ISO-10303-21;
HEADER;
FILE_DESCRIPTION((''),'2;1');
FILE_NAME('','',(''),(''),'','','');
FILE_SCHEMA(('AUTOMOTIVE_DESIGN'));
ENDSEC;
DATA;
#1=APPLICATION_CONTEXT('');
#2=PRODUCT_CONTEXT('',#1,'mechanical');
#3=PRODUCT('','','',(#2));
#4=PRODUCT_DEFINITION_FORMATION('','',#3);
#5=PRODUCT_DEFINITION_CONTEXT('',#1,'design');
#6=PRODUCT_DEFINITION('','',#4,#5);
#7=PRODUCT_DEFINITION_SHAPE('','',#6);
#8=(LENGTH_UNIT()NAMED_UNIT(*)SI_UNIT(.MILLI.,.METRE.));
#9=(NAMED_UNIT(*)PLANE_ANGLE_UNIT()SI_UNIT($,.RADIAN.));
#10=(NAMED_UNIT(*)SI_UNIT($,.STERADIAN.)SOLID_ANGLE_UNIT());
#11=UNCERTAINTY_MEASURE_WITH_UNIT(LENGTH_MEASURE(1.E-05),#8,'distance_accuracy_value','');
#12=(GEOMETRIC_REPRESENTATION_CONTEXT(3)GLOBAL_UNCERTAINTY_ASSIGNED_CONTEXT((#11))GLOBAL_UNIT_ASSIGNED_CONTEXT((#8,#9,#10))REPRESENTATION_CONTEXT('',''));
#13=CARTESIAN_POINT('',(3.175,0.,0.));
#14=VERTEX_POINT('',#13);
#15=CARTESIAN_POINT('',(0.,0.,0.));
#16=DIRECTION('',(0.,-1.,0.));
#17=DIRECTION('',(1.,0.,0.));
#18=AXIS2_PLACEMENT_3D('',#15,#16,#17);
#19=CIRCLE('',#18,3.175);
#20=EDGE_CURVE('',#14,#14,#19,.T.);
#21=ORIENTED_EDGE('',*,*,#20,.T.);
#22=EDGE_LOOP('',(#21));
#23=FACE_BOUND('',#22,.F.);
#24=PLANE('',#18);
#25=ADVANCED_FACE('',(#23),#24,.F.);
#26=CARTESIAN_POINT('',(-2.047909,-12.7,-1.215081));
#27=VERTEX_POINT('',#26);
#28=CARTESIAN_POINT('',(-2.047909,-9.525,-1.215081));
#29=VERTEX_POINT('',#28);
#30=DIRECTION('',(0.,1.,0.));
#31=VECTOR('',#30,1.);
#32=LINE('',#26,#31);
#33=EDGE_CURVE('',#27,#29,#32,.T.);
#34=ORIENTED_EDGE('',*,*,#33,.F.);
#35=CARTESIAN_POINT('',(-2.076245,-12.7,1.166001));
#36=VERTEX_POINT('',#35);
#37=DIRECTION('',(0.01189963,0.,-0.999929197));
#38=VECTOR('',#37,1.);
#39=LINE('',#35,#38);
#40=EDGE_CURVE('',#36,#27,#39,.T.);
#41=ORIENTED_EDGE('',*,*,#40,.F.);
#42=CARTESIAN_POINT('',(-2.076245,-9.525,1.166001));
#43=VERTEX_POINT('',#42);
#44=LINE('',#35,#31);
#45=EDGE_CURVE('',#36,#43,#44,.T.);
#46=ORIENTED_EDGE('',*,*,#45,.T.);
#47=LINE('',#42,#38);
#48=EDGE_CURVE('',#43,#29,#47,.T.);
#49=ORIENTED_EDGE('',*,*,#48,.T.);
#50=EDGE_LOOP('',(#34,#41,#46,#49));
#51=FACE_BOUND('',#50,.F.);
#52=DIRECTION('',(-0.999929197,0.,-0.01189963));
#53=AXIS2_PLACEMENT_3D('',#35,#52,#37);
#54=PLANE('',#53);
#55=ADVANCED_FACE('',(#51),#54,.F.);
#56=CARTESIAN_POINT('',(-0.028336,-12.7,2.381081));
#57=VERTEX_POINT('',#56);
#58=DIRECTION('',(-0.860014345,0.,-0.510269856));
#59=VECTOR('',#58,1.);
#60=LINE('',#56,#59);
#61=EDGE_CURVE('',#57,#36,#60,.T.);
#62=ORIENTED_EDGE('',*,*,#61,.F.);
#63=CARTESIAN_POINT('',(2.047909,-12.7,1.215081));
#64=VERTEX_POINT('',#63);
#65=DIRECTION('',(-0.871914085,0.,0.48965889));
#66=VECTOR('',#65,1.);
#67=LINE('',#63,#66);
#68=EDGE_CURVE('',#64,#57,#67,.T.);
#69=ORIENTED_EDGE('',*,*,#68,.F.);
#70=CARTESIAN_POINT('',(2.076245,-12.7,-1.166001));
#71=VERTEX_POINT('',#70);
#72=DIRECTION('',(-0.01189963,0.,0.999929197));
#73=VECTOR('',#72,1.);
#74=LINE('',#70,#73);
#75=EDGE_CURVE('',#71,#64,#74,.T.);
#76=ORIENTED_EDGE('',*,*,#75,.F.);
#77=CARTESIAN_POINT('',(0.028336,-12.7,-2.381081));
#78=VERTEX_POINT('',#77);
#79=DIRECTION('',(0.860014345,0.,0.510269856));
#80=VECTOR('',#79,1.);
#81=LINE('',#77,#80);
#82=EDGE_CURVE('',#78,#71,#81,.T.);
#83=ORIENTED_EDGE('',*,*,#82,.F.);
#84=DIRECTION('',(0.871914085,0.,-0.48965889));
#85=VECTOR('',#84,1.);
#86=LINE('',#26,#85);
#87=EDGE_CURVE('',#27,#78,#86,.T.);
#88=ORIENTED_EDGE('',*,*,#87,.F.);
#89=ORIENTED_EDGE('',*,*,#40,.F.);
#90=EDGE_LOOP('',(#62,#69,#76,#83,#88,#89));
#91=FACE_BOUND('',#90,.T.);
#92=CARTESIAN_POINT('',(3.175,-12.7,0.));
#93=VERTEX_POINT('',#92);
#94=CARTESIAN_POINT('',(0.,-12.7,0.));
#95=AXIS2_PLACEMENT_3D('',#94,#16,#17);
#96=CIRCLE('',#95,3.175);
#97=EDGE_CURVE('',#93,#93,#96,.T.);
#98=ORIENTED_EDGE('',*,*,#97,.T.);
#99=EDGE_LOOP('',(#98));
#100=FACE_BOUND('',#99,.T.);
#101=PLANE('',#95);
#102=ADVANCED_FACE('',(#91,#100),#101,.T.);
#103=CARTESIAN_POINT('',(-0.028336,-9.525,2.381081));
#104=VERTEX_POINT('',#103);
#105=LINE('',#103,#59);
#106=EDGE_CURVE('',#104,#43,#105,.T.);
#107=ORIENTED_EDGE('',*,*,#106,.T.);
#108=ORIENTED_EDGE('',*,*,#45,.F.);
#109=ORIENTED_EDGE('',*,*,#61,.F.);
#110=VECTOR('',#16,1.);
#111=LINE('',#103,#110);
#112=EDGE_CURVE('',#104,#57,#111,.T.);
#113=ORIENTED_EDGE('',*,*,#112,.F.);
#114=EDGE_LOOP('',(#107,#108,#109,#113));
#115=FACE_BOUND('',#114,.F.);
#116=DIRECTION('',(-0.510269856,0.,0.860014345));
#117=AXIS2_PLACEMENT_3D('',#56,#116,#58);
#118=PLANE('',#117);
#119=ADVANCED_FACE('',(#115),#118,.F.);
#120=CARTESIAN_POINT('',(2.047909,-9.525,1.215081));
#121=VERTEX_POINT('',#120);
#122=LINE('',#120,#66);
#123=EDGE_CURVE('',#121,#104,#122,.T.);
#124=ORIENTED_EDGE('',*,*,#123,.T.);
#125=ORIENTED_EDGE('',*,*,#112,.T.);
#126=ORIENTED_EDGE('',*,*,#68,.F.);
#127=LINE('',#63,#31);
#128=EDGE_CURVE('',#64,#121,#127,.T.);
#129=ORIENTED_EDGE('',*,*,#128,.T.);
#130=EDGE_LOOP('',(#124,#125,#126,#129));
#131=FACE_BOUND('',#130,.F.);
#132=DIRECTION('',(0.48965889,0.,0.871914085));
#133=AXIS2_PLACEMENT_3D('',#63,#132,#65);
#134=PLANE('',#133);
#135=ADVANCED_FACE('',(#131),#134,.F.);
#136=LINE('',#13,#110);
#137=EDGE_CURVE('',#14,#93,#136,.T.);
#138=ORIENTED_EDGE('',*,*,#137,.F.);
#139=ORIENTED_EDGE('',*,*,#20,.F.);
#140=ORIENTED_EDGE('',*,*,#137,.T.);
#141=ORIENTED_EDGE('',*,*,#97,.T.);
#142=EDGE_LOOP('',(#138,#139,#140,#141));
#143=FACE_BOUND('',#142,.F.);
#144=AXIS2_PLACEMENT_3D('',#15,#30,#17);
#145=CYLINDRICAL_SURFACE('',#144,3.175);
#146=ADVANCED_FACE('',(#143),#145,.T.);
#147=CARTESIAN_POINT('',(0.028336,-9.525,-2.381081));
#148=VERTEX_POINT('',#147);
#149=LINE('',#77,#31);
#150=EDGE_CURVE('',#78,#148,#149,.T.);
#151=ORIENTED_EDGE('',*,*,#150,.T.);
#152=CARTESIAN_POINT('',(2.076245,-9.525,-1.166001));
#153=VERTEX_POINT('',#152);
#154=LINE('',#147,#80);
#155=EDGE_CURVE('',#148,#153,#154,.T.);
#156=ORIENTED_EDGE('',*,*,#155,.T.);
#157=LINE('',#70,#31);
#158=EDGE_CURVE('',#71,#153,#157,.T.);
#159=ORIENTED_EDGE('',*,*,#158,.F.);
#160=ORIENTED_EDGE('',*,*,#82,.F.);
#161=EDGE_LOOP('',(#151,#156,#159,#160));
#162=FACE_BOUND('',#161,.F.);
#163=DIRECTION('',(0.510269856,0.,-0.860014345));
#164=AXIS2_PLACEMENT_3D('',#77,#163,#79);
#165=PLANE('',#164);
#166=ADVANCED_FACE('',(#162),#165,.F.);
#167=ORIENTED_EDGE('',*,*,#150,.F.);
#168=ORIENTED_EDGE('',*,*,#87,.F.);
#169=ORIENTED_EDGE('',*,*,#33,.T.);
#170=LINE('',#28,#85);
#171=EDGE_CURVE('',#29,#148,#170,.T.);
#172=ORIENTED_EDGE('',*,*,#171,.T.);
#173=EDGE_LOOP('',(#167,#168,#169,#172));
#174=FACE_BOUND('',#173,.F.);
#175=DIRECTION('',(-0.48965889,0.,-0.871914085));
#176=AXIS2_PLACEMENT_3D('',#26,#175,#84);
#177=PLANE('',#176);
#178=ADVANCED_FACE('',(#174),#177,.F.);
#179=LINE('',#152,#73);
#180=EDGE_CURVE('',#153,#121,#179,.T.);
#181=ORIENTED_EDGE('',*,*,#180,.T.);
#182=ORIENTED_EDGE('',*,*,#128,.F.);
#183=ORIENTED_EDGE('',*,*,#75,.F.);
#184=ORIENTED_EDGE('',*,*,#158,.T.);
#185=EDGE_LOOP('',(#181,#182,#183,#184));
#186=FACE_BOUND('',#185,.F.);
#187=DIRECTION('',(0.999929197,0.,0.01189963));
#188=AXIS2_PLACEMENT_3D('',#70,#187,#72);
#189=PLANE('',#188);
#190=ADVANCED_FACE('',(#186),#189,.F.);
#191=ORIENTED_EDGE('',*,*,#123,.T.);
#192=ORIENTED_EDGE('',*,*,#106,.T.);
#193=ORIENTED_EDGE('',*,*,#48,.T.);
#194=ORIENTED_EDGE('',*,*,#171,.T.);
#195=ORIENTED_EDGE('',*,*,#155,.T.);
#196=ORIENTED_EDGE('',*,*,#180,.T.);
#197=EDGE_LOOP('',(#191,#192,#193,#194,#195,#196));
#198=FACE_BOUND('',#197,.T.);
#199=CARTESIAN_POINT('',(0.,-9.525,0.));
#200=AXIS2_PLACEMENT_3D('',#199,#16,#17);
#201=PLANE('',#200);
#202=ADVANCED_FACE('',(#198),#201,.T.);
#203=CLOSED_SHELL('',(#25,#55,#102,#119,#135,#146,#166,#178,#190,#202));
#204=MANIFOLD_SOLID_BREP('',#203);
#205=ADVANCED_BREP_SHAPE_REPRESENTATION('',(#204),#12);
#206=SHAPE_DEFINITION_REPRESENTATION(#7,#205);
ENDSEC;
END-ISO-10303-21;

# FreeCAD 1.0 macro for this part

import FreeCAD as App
import Part
import Sketcher

V = App.Vector
Q = App.Units.Quantity

doc = App.newDocument("Part")
params = doc.addObject("Spreadsheet::Sheet", "Params")
for row, (alias, value) in enumerate([
    ("sketch1_diameter", "0.25 in"),
    ("pad1_length", "0.5 in"),
    ("sketch2_length", "0.09375 in"),
    ("pocket1_length", "0.125 in"),
    ("sketch3_length", "0.09375 in"),
    ("pocket2_length", "0.09375 in"),
], start=1):
    params.set(f"A{row}", alias)
    params.set(f"B{row}", "=" + value)
    params.setAlias(f"B{row}", alias)

body = doc.addObject("PartDesign::Body", "Body")

sketch1 = body.newObject("Sketcher::SketchObject", "Sketch")
sketch1.AttachmentSupport = (doc.getObject("XZ_Plane"), [""])
sketch1.MapMode = "FlatFace"
sketch1.addGeometry(Part.Circle(V(0, 0, 0), V(0, 0, 1), 3.2), False)
sketch1.addConstraint(Sketcher.Constraint("Coincident", 0, 3, -1, 1))
sketch1.addConstraint(Sketcher.Constraint("Diameter", 0, Q("0.25 in")))
sketch1.setExpression("Constraints[1]", "Params.sketch1_diameter")
pad1 = body.newObject("PartDesign::Pad", "Pad")
pad1.Profile = sketch1
pad1.setExpression("Length", "Params.pad1_length")

sketch2 = body.newObject("Sketcher::SketchObject", "Sketch001")
sketch2.AttachmentSupport = (doc.getObject("XZ_Plane"), [""])
sketch2.MapMode = "FlatFace"
sketch2.AttachmentOffset = App.Placement(V(0, 0, 0.5 * 25.4), App.Rotation())
sketch2.addGeometry(Part.LineSegment(V(0, 2.4, 0), V(-2.1, 1.2, 0)), False)
sketch2.addGeometry(Part.LineSegment(V(-2.1, 1.2, 0), V(-2, -1.2, 0)), False)
sketch2.addGeometry(Part.LineSegment(V(-2, -1.2, 0), V(0, -2.4, 0)), False)
sketch2.addGeometry(Part.LineSegment(V(0, -2.4, 0), V(2.1, -1.2, 0)), False)
sketch2.addGeometry(Part.LineSegment(V(2.1, -1.2, 0), V(2, 1.2, 0)), False)
sketch2.addGeometry(Part.LineSegment(V(2, 1.2, 0), V(0, 2.4, 0)), False)
sketch2.addConstraint(Sketcher.Constraint("Coincident", 0, 2, 1, 1))
sketch2.addConstraint(Sketcher.Constraint("Coincident", 1, 2, 2, 1))
sketch2.addConstraint(Sketcher.Constraint("Coincident", 2, 2, 3, 1))
sketch2.addConstraint(Sketcher.Constraint("Coincident", 3, 2, 4, 1))
sketch2.addConstraint(Sketcher.Constraint("Coincident", 4, 2, 5, 1))
sketch2.addConstraint(Sketcher.Constraint("Coincident", 5, 2, 0, 1))
sketch2.addConstraint(Sketcher.Constraint("Symmetric", 0, 2, 3, 2, -1, 1))
sketch2.addConstraint(Sketcher.Constraint("Symmetric", 1, 2, 4, 2, -1, 1))
sketch2.addConstraint(Sketcher.Constraint("Symmetric", 2, 2, 5, 2, -1, 1))
sketch2.addConstraint(Sketcher.Constraint("Equal", 0, 1))
sketch2.addConstraint(Sketcher.Constraint("Equal", 1, 2))
sketch2.addConstraint(Sketcher.Constraint("Distance", 0, Q("0.09375 in")))
sketch2.addConstraint(Sketcher.Constraint("DistanceY", -1, 1, 0, 2, 1.166001))
sketch2.addConstraint(Sketcher.Constraint("DistanceY", 2, 2, 1, 2, 1.166))
sketch2.addConstraint(Sketcher.Constraint("DistanceX", 1, 2, -1, 1, 2.047909))
sketch2.setExpression("Constraints[11]", "Params.sketch2_length")
pocket1 = body.newObject("PartDesign::Pocket", "Pocket")
pocket1.Profile = sketch2
pocket1.setExpression("Length", "Params.pocket1_length")

sketch3 = body.newObject("Sketcher::SketchObject", "Sketch002")
sketch3.AttachmentSupport = (doc.getObject("XZ_Plane"), [""])
sketch3.MapMode = "FlatFace"
sketch3.AttachmentOffset = App.Placement(V(0, 0, 0.5 * 25.4), App.Rotation())
sketch3.addGeometry(Part.LineSegment(V(0, 2.4, 0), V(-2.1, 1.2, 0)), False)
sketch3.addGeometry(Part.LineSegment(V(-2.1, 1.2, 0), V(-2, -1.2, 0)), False)
sketch3.addGeometry(Part.LineSegment(V(-2, -1.2, 0), V(0, -2.4, 0)), False)
sketch3.addGeometry(Part.LineSegment(V(0, -2.4, 0), V(2.1, -1.2, 0)), False)
sketch3.addGeometry(Part.LineSegment(V(2.1, -1.2, 0), V(2, 1.2, 0)), False)
sketch3.addGeometry(Part.LineSegment(V(2, 1.2, 0), V(0, 2.4, 0)), False)
sketch3.addConstraint(Sketcher.Constraint("Coincident", 0, 2, 1, 1))
sketch3.addConstraint(Sketcher.Constraint("Coincident", 1, 2, 2, 1))
sketch3.addConstraint(Sketcher.Constraint("Coincident", 2, 2, 3, 1))
sketch3.addConstraint(Sketcher.Constraint("Coincident", 3, 2, 4, 1))
sketch3.addConstraint(Sketcher.Constraint("Coincident", 4, 2, 5, 1))
sketch3.addConstraint(Sketcher.Constraint("Coincident", 5, 2, 0, 1))
sketch3.addConstraint(Sketcher.Constraint("Symmetric", 0, 2, 3, 2, -1, 1))
sketch3.addConstraint(Sketcher.Constraint("Symmetric", 1, 2, 4, 2, -1, 1))
sketch3.addConstraint(Sketcher.Constraint("Symmetric", 2, 2, 5, 2, -1, 1))
sketch3.addConstraint(Sketcher.Constraint("Equal", 0, 1))
sketch3.addConstraint(Sketcher.Constraint("Equal", 1, 2))
sketch3.addConstraint(Sketcher.Constraint("Distance", 0, Q("0.09375 in")))
sketch3.addConstraint(Sketcher.Constraint("DistanceY", -1, 1, 0, 2, 1.166001))
sketch3.addConstraint(Sketcher.Constraint("DistanceY", 2, 2, 1, 2, 1.166))
sketch3.addConstraint(Sketcher.Constraint("DistanceX", 1, 2, -1, 1, 2.047909))
sketch3.setExpression("Constraints[11]", "Params.sketch3_length")
pocket2 = body.newObject("PartDesign::Pocket", "Pocket001")
pocket2.Profile = sketch3
pocket2.setExpression("Length", "Params.pocket2_length")

doc.recompute()
